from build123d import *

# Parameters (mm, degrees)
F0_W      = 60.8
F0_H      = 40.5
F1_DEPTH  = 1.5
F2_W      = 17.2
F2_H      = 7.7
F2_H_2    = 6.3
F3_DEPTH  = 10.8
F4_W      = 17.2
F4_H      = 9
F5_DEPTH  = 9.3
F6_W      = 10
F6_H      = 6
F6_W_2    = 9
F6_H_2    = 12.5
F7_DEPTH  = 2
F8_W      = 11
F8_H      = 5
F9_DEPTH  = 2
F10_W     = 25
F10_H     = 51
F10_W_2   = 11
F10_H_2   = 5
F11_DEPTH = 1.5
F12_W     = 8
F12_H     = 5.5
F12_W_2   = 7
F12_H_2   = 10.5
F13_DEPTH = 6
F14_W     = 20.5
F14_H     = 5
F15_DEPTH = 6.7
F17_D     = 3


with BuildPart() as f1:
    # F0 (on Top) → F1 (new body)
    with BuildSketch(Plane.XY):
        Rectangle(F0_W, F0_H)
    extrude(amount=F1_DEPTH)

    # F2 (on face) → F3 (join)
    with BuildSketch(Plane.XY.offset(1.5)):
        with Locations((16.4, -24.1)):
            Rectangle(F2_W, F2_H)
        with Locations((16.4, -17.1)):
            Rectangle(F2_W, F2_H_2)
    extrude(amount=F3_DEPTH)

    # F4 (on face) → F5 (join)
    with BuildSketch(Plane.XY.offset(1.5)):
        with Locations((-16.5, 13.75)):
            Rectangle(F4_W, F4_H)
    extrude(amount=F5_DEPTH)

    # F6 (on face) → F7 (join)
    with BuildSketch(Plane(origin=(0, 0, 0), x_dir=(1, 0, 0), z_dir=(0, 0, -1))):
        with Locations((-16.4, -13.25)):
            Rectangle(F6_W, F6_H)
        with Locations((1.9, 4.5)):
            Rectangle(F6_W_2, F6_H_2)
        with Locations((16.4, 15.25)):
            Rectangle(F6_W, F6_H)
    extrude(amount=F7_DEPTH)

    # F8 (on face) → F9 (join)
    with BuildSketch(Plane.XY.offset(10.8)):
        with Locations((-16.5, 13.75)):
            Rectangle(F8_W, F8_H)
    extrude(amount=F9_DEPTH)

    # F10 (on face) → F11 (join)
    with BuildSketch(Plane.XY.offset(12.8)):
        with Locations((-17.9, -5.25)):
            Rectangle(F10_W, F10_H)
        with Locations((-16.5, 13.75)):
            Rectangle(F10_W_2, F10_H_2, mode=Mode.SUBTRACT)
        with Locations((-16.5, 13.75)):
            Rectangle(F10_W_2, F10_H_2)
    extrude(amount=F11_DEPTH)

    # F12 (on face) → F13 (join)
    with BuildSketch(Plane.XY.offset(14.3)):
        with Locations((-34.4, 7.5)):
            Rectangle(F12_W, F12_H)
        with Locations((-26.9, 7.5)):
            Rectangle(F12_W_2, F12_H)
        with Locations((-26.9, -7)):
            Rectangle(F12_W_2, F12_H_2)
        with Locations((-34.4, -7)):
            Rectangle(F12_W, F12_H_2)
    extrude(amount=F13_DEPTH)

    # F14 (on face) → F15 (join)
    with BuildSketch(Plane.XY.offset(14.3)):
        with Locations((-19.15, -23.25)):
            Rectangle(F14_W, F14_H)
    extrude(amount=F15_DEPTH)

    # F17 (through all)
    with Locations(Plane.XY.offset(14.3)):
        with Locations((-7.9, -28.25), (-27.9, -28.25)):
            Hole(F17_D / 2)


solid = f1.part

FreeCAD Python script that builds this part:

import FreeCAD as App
import Part
import Sketcher
Q = App.Units.Quantity


def add_polygon(sketch, points):
    """Adds a closed chain of lines whose ends are joined by coincident constraints."""
    first, n = sketch.GeometryCount, len(points)
    for a, b in zip(points, points[1:] + points[:1]):
        sketch.addGeometry(Part.LineSegment(App.Vector(*a, 0), App.Vector(*b, 0)), False)
    for i in range(n):
        sketch.addConstraint(Sketcher.Constraint("Coincident", first + i, 2, first + (i + 1) % n, 1))

doc = App.newDocument("Part")
body = doc.addObject("PartDesign::Body", "Body")

sketch1 = body.newObject("Sketcher::SketchObject", "Sketch")
sketch1.AttachmentSupport = (doc.getObject("XY_Plane"), [""])
sketch1.MapMode = "FlatFace"
add_polygon(sketch1, [(-30, 20), (-30, -20), (30, -20), (30, 20)])
sketch1.addConstraint([
    Sketcher.Constraint("Vertical", 0),
    Sketcher.Constraint("Horizontal", 1),
    Sketcher.Constraint("Vertical", 2),
    Sketcher.Constraint("Horizontal", 3),
    Sketcher.Constraint("Symmetric", 0, 2, 2, 2, -1, 1),
    Sketcher.Constraint("DistanceX", 1, 1, 1, 2, Q("60.8 mm")),
    Sketcher.Constraint("DistanceY", 0, 2, 0, 1, Q("40.5 mm")),
])
pad1 = body.newObject("PartDesign::Pad", "Pad")
pad1.Profile = sketch1
pad1.Length = 1.5

sketch2 = body.newObject("Sketcher::SketchObject", "Sketch001")
sketch2.AttachmentSupport = (doc.getObject("XY_Plane"), [""])
sketch2.MapMode = "FlatFace"
sketch2.AttachmentOffset = App.Placement(App.Vector(0, 0, 1.5), App.Rotation())
add_polygon(sketch2, [(8, -28), (25, -28), (25, -14), (8, -14)])
sketch2.addConstraint([
    Sketcher.Constraint("Horizontal", 0),
    Sketcher.Constraint("Vertical", 1),
    Sketcher.Constraint("Horizontal", 2),
    Sketcher.Constraint("Vertical", 3),
    Sketcher.Constraint("DistanceY", 1, 1, 1, 2, Q("14 mm")),
    Sketcher.Constraint("DistanceX", 0, 1, 0, 2, Q("17.2 mm")),
    Sketcher.Constraint("DistanceX", -1, 1, 0, 2, Q("25 mm")),
    Sketcher.Constraint("DistanceY", 0, 2, -1, 1, Q("27.95 mm")),
])
pad2 = body.newObject("PartDesign::Pad", "Pad001")
pad2.Profile = sketch2
pad2.Length = 10.8

sketch3 = body.newObject("Sketcher::SketchObject", "Sketch002")
sketch3.AttachmentSupport = (doc.getObject("XY_Plane"), [""])
sketch3.MapMode = "FlatFace"
sketch3.AttachmentOffset = App.Placement(App.Vector(0, 0, 1.5), App.Rotation())
add_polygon(sketch3, [(-25, 18), (-25, 9), (-8, 9), (-8, 18)])
sketch3.addConstraint([
    Sketcher.Constraint("Vertical", 0),
    Sketcher.Constraint("Horizontal", 1),
    Sketcher.Constraint("Vertical", 2),
    Sketcher.Constraint("Horizontal", 3),
    Sketcher.Constraint("DistanceY", 0, 2, 0, 1, Q("9 mm")),
    Sketcher.Constraint("DistanceX", 1, 1, 1, 2, Q("17.2 mm")),
    Sketcher.Constraint("DistanceX", 0, 2, -1, 1, Q("25.1 mm")),
    Sketcher.Constraint("DistanceY", -1, 1, 0, 2, Q("9.25 mm")),
])
pad3 = body.newObject("PartDesign::Pad", "Pad002")
pad3.Profile = sketch3
pad3.Length = 9.3

sketch4 = body.newObject("Sketcher::SketchObject", "Sketch003")
sketch4.AttachmentSupport = (doc.getObject("XY_Plane"), [""])
sketch4.MapMode = "FlatFace"
add_polygon(sketch4, [(-21, 10), (-21, 16), (-11, 16), (-11, 10)])
add_polygon(sketch4, [(-3, -11), (-3, 2), (6, 2), (6, -11)])
add_polygon(sketch4, [(11, -18), (11, -12), (21, -12), (21, -18)])
sketch4.addConstraint([
    Sketcher.Constraint("Vertical", 0),
    Sketcher.Constraint("Horizontal", 1),
    Sketcher.Constraint("Vertical", 2),
    Sketcher.Constraint("Horizontal", 3),
    Sketcher.Constraint("Vertical", 4),
    Sketcher.Constraint("Horizontal", 5),
    Sketcher.Constraint("Vertical", 6),
    Sketcher.Constraint("Horizontal", 7),
    Sketcher.Constraint("Vertical", 8),
    Sketcher.Constraint("Horizontal", 9),
    Sketcher.Constraint("Vertical", 10),
    Sketcher.Constraint("Horizontal", 11),
    Sketcher.Constraint("Equal", 3, 9),
    Sketcher.Constraint("Equal", 2, 8),
    Sketcher.Constraint("DistanceX", 1, 1, 1, 2, Q("10 mm")),
    Sketcher.Constraint("DistanceX", 5, 1, 5, 2, Q("9 mm")),
    Sketcher.Constraint("DistanceY", 0, 1, 0, 2, Q("6 mm")),
    Sketcher.Constraint("DistanceY", 4, 1, 4, 2, Q("12.5 mm")),
    Sketcher.Constraint("DistanceY", 6, 2, 2, 2, Q("21 mm")),
    Sketcher.Constraint("DistanceX", 6, 2, 8, 2, Q("5 mm")),
    Sketcher.Constraint("DistanceY", 8, 2, 5, 2, Q("14 mm")),
    Sketcher.Constraint("DistanceX", 0, 2, -1, 1, Q("21.4 mm")),
    Sketcher.Constraint("DistanceX", 4, 2, -1, 1, Q("2.6 mm")),
    Sketcher.Constraint("DistanceY", -1, 1, 0, 2, Q("16.25 mm")),
])
pad4 = body.newObject("PartDesign::Pad", "Pad003")
pad4.Profile = sketch4
pad4.Length = 2
pad4.Reversed = True

sketch5 = body.newObject("Sketcher::SketchObject", "Sketch004")
sketch5.AttachmentSupport = (doc.getObject("XY_Plane"), [""])
sketch5.MapMode = "FlatFace"
sketch5.AttachmentOffset = App.Placement(App.Vector(0, 0, 10.8), App.Rotation())
add_polygon(sketch5, [(-22, 16), (-22, 11), (-11, 11), (-11, 16)])
sketch5.addConstraint([
    Sketcher.Constraint("Vertical", 0),
    Sketcher.Constraint("Horizontal", 1),
    Sketcher.Constraint("Vertical", 2),
    Sketcher.Constraint("Horizontal", 3),
    Sketcher.Constraint("DistanceX", 1, 1, 1, 2, Q("11 mm")),
    Sketcher.Constraint("DistanceY", 0, 2, 0, 1, Q("5 mm")),
    Sketcher.Constraint("DistanceX", 0, 2, -1, 1, Q("22 mm")),
    Sketcher.Constraint("DistanceY", -1, 1, 0, 2, Q("11.25 mm")),
])
pad5 = body.newObject("PartDesign::Pad", "Pad004")
pad5.Profile = sketch5
pad5.Length = 2

sketch6 = body.newObject("Sketcher::SketchObject", "Sketch005")
sketch6.AttachmentSupport = (doc.getObject("XY_Plane"), [""])
sketch6.MapMode = "FlatFace"
sketch6.AttachmentOffset = App.Placement(App.Vector(0, 0, 12.8), App.Rotation())
add_polygon(sketch6, [(-30, 20), (-30, -31), (-5, -31), (-5, 20)])
sketch6.addConstraint([
    Sketcher.Constraint("Vertical", 0),
    Sketcher.Constraint("Horizontal", 1),
    Sketcher.Constraint("Vertical", 2),
    Sketcher.Constraint("Horizontal", 3),
    Sketcher.Constraint("DistanceX", 1, 1, 1, 2, Q("25 mm")),
    Sketcher.Constraint("DistanceY", 0, 2, 0, 1, Q("51 mm")),
    Sketcher.Constraint("DistanceX", 0, 2, -1, 1, Q("30.4 mm")),
    Sketcher.Constraint("DistanceY", 0, 2, -1, 1, Q("30.75 mm")),
])
pad6 = body.newObject("PartDesign::Pad", "Pad005")
pad6.Profile = sketch6
pad6.Length = 1.5

sketch7 = body.newObject("Sketcher::SketchObject", "Sketch006")
sketch7.AttachmentSupport = (doc.getObject("XY_Plane"), [""])
sketch7.MapMode = "FlatFace"
sketch7.AttachmentOffset = App.Placement(App.Vector(0, 0, 14.3), App.Rotation())
add_polygon(sketch7, [(-38, 10), (-38, 5), (-23, 5), (-23, 10)])
add_polygon(sketch7, [(-23, -12), (-23, -2), (-38, -2), (-38, -12)])
sketch7.addConstraint([
    Sketcher.Constraint("Vertical", 0),
    Sketcher.Constraint("Horizontal", 1),
    Sketcher.Constraint("Vertical", 2),
    Sketcher.Constraint("Horizontal", 3),
    Sketcher.Constraint("Vertical", 4),
    Sketcher.Constraint("Horizontal", 5),
    Sketcher.Constraint("Vertical", 6),
    Sketcher.Constraint("Horizontal", 7),
    Sketcher.Constraint("Vertical", 2, 2, 4, 2),
    Sketcher.Constraint("Vertical", 3, 2, 5, 2),
    Sketcher.Constraint("DistanceX", 1, 1, 1, 2, Q("15 mm")),
    Sketcher.Constraint("DistanceY", 0, 2, 0, 1, Q("5.5 mm")),
    Sketcher.Constraint("DistanceY", 4, 1, 4, 2, Q("10.5 mm")),
    Sketcher.Constraint("DistanceY", 4, 2, 2, 2, Q("12 mm")),
    Sketcher.Constraint("DistanceX", 0, 2, -1, 1, Q("38.4 mm")),
    Sketcher.Constraint("DistanceY", -1, 1, 0, 2, Q("4.75 mm")),
])
pad7 = body.newObject("PartDesign::Pad", "Pad006")
pad7.Profile = sketch7
pad7.Length = 6

sketch8 = body.newObject("Sketcher::SketchObject", "Sketch007")
sketch8.AttachmentSupport = (doc.getObject("XY_Plane"), [""])
sketch8.MapMode = "FlatFace"
sketch8.AttachmentOffset = App.Placement(App.Vector(0, 0, 14.3), App.Rotation())
add_polygon(sketch8, [(-29, -21), (-29, -26), (-9, -26), (-9, -21)])
sketch8.addConstraint([
    Sketcher.Constraint("Vertical", 0),
    Sketcher.Constraint("Horizontal", 1),
    Sketcher.Constraint("Vertical", 2),
    Sketcher.Constraint("Horizontal", 3),
    Sketcher.Constraint("DistanceY", 0, 2, 0, 1, Q("5 mm")),
    Sketcher.Constraint("DistanceX", 1, 1, 1, 2, Q("20.5 mm")),
    Sketcher.Constraint("DistanceX", 0, 2, -1, 1, Q("29.4 mm")),
    Sketcher.Constraint("DistanceY", 0, 2, -1, 1, Q("25.75 mm")),
])
pad8 = body.newObject("PartDesign::Pad", "Pad007")
pad8.Profile = sketch8
pad8.Length = 6.7

sketch9 = body.newObject("Sketcher::SketchObject", "Sketch008")
sketch9.AttachmentSupport = (doc.getObject("XY_Plane"), [""])
sketch9.MapMode = "FlatFace"
sketch9.AttachmentOffset = App.Placement(App.Vector(0, 0, 14.3), App.Rotation())
sketch9.addGeometry([
    Part.Circle(App.Vector(-7.9, -28.2, 0), App.Vector(0, 0, 1), 1.5),
    Part.Circle(App.Vector(-27.9, -28.2, 0), App.Vector(0, 0, 1), 1.5),
], False)
sketch9.addConstraint([
    Sketcher.Constraint("Equal", 0, 1),
    Sketcher.Constraint("Horizontal", 0, 3, 1, 3),
    Sketcher.Constraint("Diameter", 0, Q("3 mm")),
    Sketcher.Constraint("DistanceX", 1, 3, 0, 3, Q("20 mm")),
    Sketcher.Constraint("DistanceX", 0, 3, -1, 1, Q("7.9 mm")),
    Sketcher.Constraint("DistanceY", 0, 3, -1, 1, Q("28.25 mm")),
])
doc.recompute()
hole = body.newObject("PartDesign::Hole", "Hole")
hole.Profile = sketch9
hole.ThreadType = "None"
hole.Diameter = 3
hole.DepthType = "ThroughAll"

doc.recompute()
